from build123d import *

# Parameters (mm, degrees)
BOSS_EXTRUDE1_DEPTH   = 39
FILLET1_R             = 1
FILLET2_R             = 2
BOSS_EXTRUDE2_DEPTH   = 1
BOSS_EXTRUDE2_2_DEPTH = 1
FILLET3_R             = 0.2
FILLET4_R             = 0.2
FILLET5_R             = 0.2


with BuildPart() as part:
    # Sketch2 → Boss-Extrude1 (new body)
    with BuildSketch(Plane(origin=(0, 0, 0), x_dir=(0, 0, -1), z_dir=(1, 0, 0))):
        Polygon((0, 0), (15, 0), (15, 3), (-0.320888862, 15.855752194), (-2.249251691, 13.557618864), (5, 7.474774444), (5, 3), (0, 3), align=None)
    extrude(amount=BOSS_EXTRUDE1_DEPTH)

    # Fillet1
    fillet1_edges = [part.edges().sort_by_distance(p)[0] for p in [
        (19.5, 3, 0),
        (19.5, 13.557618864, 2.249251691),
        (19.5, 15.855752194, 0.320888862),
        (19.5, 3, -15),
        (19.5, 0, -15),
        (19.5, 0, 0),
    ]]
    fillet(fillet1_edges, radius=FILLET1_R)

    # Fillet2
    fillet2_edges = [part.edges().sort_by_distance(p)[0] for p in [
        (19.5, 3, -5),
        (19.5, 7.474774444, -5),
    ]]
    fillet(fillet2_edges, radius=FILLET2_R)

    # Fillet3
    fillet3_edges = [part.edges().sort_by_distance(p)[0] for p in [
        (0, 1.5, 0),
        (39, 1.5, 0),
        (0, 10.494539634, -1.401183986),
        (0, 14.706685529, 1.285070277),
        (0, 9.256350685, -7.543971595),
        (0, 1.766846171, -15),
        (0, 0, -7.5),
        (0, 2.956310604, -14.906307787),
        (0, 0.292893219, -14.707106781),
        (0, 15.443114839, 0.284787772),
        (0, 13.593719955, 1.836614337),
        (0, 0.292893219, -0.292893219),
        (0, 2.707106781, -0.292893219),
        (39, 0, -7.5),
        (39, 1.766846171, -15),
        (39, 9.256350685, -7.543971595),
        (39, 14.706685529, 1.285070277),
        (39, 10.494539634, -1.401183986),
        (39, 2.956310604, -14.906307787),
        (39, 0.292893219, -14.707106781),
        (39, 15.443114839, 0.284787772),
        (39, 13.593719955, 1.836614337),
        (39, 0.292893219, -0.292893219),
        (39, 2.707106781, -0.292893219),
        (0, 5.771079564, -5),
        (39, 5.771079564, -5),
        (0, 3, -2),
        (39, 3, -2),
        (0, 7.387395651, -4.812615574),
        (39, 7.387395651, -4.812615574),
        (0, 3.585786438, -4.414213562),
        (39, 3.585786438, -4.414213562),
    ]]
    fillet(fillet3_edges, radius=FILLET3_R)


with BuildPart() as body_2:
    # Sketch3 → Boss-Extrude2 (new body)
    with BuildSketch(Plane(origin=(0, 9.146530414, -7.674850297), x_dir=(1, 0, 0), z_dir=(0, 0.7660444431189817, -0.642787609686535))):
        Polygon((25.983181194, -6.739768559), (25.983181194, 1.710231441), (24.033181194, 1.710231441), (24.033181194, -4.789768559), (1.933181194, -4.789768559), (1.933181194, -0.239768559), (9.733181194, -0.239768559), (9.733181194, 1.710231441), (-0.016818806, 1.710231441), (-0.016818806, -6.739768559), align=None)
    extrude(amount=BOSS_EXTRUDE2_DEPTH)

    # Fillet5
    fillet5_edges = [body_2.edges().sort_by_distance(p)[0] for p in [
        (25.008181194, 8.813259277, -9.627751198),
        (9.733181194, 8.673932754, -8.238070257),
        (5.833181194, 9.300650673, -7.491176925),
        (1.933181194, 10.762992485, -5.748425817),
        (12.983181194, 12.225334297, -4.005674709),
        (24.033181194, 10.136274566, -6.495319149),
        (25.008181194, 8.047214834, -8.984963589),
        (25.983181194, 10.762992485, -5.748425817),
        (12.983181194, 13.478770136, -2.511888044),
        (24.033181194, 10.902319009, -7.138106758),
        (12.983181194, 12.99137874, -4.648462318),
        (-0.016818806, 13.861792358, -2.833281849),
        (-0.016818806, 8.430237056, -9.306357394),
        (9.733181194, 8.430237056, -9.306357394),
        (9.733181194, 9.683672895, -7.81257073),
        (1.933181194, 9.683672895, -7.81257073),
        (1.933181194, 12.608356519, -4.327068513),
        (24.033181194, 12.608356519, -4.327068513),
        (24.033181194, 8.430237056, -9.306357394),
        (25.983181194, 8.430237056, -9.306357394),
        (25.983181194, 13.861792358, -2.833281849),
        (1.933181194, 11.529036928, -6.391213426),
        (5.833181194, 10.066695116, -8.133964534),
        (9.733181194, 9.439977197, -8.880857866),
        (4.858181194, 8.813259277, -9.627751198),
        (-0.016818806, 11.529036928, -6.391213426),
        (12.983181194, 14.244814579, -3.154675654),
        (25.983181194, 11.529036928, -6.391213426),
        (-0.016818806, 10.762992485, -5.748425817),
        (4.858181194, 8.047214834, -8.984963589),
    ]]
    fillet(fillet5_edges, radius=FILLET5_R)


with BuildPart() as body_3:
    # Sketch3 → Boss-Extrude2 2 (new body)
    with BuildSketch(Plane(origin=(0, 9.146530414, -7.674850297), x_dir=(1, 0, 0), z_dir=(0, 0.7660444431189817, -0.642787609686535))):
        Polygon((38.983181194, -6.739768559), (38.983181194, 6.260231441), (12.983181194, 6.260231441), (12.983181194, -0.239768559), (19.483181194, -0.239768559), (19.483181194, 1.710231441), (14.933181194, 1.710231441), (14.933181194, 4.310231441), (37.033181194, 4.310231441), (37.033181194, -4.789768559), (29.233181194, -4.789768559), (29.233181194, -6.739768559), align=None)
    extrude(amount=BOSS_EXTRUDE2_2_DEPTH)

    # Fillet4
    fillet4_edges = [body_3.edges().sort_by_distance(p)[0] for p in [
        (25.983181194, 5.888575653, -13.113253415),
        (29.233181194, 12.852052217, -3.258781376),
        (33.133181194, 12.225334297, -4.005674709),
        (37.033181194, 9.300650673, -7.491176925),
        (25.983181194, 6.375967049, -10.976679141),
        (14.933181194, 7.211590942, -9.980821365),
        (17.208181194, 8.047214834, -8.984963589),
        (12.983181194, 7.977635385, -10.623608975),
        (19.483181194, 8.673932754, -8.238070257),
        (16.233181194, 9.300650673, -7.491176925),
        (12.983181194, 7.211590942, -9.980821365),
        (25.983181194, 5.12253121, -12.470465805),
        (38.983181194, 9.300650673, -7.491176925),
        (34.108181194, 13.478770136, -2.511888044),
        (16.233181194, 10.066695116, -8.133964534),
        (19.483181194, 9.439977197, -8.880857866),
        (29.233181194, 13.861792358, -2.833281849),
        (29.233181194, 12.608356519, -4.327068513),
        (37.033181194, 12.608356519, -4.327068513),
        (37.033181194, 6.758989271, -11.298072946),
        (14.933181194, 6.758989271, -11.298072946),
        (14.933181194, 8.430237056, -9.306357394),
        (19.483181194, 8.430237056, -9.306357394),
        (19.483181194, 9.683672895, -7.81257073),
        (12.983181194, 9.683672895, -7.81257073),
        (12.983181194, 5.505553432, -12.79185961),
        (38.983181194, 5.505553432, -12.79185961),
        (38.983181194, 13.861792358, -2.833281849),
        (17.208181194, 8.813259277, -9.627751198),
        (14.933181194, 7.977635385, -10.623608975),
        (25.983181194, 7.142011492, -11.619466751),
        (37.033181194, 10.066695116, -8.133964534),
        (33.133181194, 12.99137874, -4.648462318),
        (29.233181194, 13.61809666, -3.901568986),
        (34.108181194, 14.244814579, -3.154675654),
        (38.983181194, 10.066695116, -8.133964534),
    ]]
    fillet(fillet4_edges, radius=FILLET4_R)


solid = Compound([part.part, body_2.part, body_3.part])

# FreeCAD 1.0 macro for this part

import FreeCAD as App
import Part
import Sketcher
from FreeCAD import Vector
Q = App.Units.Quantity


def edges_at(feature, points):
    """Names of the edges that pass closest to the given points."""
    edges = feature.Shape.Edges
    near = lambda p: min(range(len(edges)), key=lambda i: edges[i].distToShape(Part.Vertex(*p))[0])
    return sorted({f"Edge{near(p) + 1}" for p in points})


def add_polygon(sketch, points):
    """Adds a closed chain of lines whose ends are joined by coincident constraints."""
    first, n = sketch.GeometryCount, len(points)
    for a, b in zip(points, points[1:] + points[:1]):
        sketch.addGeometry(Part.LineSegment(App.Vector(*a, 0), App.Vector(*b, 0)), False)
    for i in range(n):
        sketch.addConstraint(Sketcher.Constraint("Coincident", first + i, 2, first + (i + 1) % n, 1))

doc = App.newDocument("Part")
params = doc.addObject("Spreadsheet::Sheet", "Params")
for row, (alias, value) in enumerate([
    ("sketch1_width", "3 mm"),
    ("sketch1_height", "15 mm"),
    ("sketch1_height2", "5 mm"),
    ("sketch1_length", "20 mm"),
    ("sketch1_length2", "3 mm"),
    ("pad1_length", "39 mm"),
    ("fillet_radius", "1 mm"),
    ("fillet2_radius", "2 mm"),
    ("fillet3_radius", "0.2 mm"),
    ("sketch2_width", "26 mm"),
    ("sketch2_width2", "22.1 mm"),
    ("sketch2_width3", "7.8 mm"),
    ("sketch2_height", "6.5 mm"),
    ("sketch2_width4", "1.95 mm"),
    ("pad2_length", "1 mm"),
    ("fillet4_radius", "0.2 mm"),
    ("sketch3_width", "26 mm"),
    ("sketch3_height", "13 mm"),
    ("sketch3_width2", "6.5 mm"),
    ("sketch3_width3", "22.1 mm"),
    ("sketch3_width4", "7.8 mm"),
    ("pad3_length", "1 mm"),
    ("fillet5_radius", "0.2 mm"),
], start=1):
    params.set(f"A{row}", alias)
    params.set(f"B{row}", "=" + value)
    params.setAlias(f"B{row}", alias)

body = doc.addObject("PartDesign::Body", "Body")

# Sketch on YZ plane
sketch1 = doc.addObject("Sketcher::SketchObject", "Sketch")
body.addObject(sketch1)
sketch1.AttachmentSupport = (doc.YZ_Plane, [""])
sketch1.MapMode = "FlatFace"
add_polygon(sketch1, [(0, 0), (0, -15), (3, -15), (15.9, 0.3), (13.6, 2.2), (7.5, -5), (3, -5), (3, 0)])  # lines 0-7
sketch1.addConstraint([
    Sketcher.Constraint("Vertical", 0),
    Sketcher.Constraint("Horizontal", 1),
    Sketcher.Constraint("Horizontal", 5),
    Sketcher.Constraint("Vertical", 6),
    Sketcher.Constraint("Horizontal", 7),
    Sketcher.Constraint("Coincident", 7, 2, -1, 1),
    Sketcher.Constraint("Perpendicular", 2, 3),
    Sketcher.Constraint("Perpendicular", 3, 4),
    Sketcher.Constraint("Vertical", 1, 2, 5, 2),
    Sketcher.Constraint("DistanceX", 1, 1, 1, 2, 3.0),
    Sketcher.Constraint("DistanceY", 0, 2, 0, 1, 15.0),
    Sketcher.Constraint("DistanceY", 6, 1, 6, 2, 5.0),
    Sketcher.Constraint("Angle", 2, Q("50 deg")),
    Sketcher.Constraint("Distance", 2, 20.0),
    Sketcher.Constraint("Distance", 3, 3.0),
])
sketch1.setExpression("Constraints[17]", "Params.sketch1_width")
sketch1.setExpression("Constraints[18]", "Params.sketch1_height")
sketch1.setExpression("Constraints[19]", "Params.sketch1_height2")
sketch1.setExpression("Constraints[21]", "Params.sketch1_length")
sketch1.setExpression("Constraints[22]", "Params.sketch1_length2")
pad1 = doc.addObject("PartDesign::Pad", "Pad")
body.addObject(pad1)
pad1.Profile = sketch1
pad1.setExpression("Length", "Params.pad1_length")
doc.recompute()

fillet = doc.addObject("PartDesign::Fillet", "Fillet")
body.addObject(fillet)
fillet.Base = (pad1, edges_at(pad1, [
    (19.5, 3, 0),
    (19.5, 13.558, 2.249),
    (19.5, 15.856, 0.321),
    (19.5, 3, -15),
    (19.5, 0, -15),
    (19.5, 0, 0),
]))
fillet.setExpression("Radius", "Params.fillet_radius")
doc.recompute()

fillet2 = doc.addObject("PartDesign::Fillet", "Fillet001")
body.addObject(fillet2)
fillet2.Base = (fillet, edges_at(fillet, [(19.5, 3, -5), (19.5, 7.475, -5)]))
fillet2.setExpression("Radius", "Params.fillet2_radius")
doc.recompute()

fillet3 = doc.addObject("PartDesign::Fillet", "Fillet002")
body.addObject(fillet3)
fillet3.Base = (fillet2, edges_at(fillet2, [
    (0, 1.5, 0),
    (39, 1.5, 0),
    (0, 10.495, -1.401),
    (0, 14.707, 1.285),
    (0, 9.256, -7.544),
    (0, 1.767, -15),
    (0, 0, -7.5),
    (0, 2.956, -14.906),
    (0, 0.293, -14.707),
    (0, 15.443, 0.285),
    (0, 13.594, 1.837),
    (0, 0.293, -0.293),
    (0, 2.707, -0.293),
    (39, 0, -7.5),
    (39, 1.767, -15),
    (39, 9.256, -7.544),
    (39, 14.707, 1.285),
    (39, 10.495, -1.401),
    (39, 2.956, -14.906),
    (39, 0.293, -14.707),
    (39, 15.443, 0.285),
    (39, 13.594, 1.837),
    (39, 0.293, -0.293),
    (39, 2.707, -0.293),
    (0, 5.771, -5),
    (39, 5.771, -5),
    (0, 3, -2),
    (39, 3, -2),
    (0, 7.387, -4.813),
    (39, 7.387, -4.813),
    (0, 3.586, -4.414),
    (39, 3.586, -4.414),
]))
fillet3.setExpression("Radius", "Params.fillet3_radius")
body2 = doc.addObject("PartDesign::Body", "Body001")

# Sketch on an angled plane
sketch2 = doc.addObject("Sketcher::SketchObject", "Sketch001")
body2.addObject(sketch2)
sketch2.Placement = App.Placement(Vector(0, 9.14653, -7.67485), App.Rotation(Vector(1, 0, 0), Vector(0, -0.64278761, -0.766044443), Vector(0, 0.766044443, -0.64278761), "ZXY"))
add_polygon(sketch2, [(26, -6.7), (26, 1.7), (24, 1.7), (24, -4.8), (1.9, -4.8), (1.9, -0.2), (9.7, -0.2), (9.7, 1.7), (0, 1.7), (0, -6.7)])  # lines 0-9
sketch2.addConstraint([
    Sketcher.Constraint("Vertical", 0),
    Sketcher.Constraint("Horizontal", 1),
    Sketcher.Constraint("Vertical", 2),
    Sketcher.Constraint("Horizontal", 3),
    Sketcher.Constraint("Vertical", 4),
    Sketcher.Constraint("Horizontal", 5),
    Sketcher.Constraint("Vertical", 6),
    Sketcher.Constraint("Horizontal", 7),
    Sketcher.Constraint("Vertical", 8),
    Sketcher.Constraint("Horizontal", 9),
    Sketcher.Constraint("Horizontal", 1, 2, 6, 2),
    Sketcher.Constraint("Equal", 1, 6),
    Sketcher.Constraint("DistanceX", 9, 1, 9, 2, 26.0),
    Sketcher.Constraint("DistanceX", 3, 2, 3, 1, 22.1),
    Sketcher.Constraint("DistanceX", 5, 1, 5, 2, 7.8),
    Sketcher.Constraint("DistanceY", 2, 2, 2, 1, 6.5),
    Sketcher.Constraint("DistanceX", 1, 2, 1, 1, 1.95),
    Sketcher.Constraint("DistanceY", 0, 1, 0, 2, 8.45),
    Sketcher.Constraint("DistanceX", -1, 1, 0, 2, 25.983181),
    Sketcher.Constraint("DistanceY", -1, 1, 0, 2, 1.710231),
])
sketch2.setExpression("Constraints[22]", "Params.sketch2_width")
sketch2.setExpression("Constraints[23]", "Params.sketch2_width2")
sketch2.setExpression("Constraints[24]", "Params.sketch2_width3")
sketch2.setExpression("Constraints[25]", "Params.sketch2_height")
sketch2.setExpression("Constraints[26]", "Params.sketch2_width4")
pad2 = doc.addObject("PartDesign::Pad", "Pad001")
body2.addObject(pad2)
pad2.Profile = sketch2
pad2.setExpression("Length", "Params.pad2_length")
doc.recompute()

fillet4 = doc.addObject("PartDesign::Fillet", "Fillet003")
body2.addObject(fillet4)
fillet4.Base = (pad2, ["Edge1"])
fillet4.UseAllEdges = True
fillet4.setExpression("Radius", "Params.fillet4_radius")
body3 = doc.addObject("PartDesign::Body", "Body002")

# Sketch on an angled plane
sketch3 = doc.addObject("Sketcher::SketchObject", "Sketch002")
body3.addObject(sketch3)
sketch3.Placement = App.Placement(Vector(0, 9.14653, -7.67485), App.Rotation(Vector(1, 0, 0), Vector(0, -0.64278761, -0.766044443), Vector(0, 0.766044443, -0.64278761), "ZXY"))
add_polygon(sketch3, [(39, -6.7), (39, 6.3), (13, 6.3), (13, -0.2), (19.5, -0.2), (19.5, 1.7), (14.9, 1.7), (14.9, 4.3), (37, 4.3), (37, -4.8), (29.2, -4.8), (29.2, -6.7)])  # lines 0-11
sketch3.addConstraint([
    Sketcher.Constraint("Vertical", 0),
    Sketcher.Constraint("Horizontal", 1),
    Sketcher.Constraint("Vertical", 2),
    Sketcher.Constraint("Horizontal", 3),
    Sketcher.Constraint("Vertical", 4),
    Sketcher.Constraint("Horizontal", 5),
    Sketcher.Constraint("Vertical", 6),
    Sketcher.Constraint("Horizontal", 7),
    Sketcher.Constraint("Vertical", 8),
    Sketcher.Constraint("Horizontal", 9),
    Sketcher.Constraint("Vertical", 10),
    Sketcher.Constraint("Horizontal", 11),
    Sketcher.Constraint("Equal", 3, 2),
    Sketcher.Constraint("Equal", 4, 10),
    Sketcher.Constraint("DistanceX", 1, 2, 1, 1, 26.0),
    Sketcher.Constraint("DistanceY", 0, 1, 0, 2, 13.0),
    Sketcher.Constraint("DistanceX", 3, 1, 3, 2, 6.5),
    Sketcher.Constraint("DistanceX", 7, 1, 7, 2, 22.1),
    Sketcher.Constraint("DistanceX", 9, 2, 9, 1, 7.8),
    Sketcher.Constraint("DistanceY", 6, 1, 6, 2, 2.6),
    Sketcher.Constraint("DistanceX", 5, 2, 5, 1, 4.55),
    Sketcher.Constraint("DistanceY", 4, 1, 4, 2, 1.95),
    Sketcher.Constraint("DistanceX", -1, 1, 0, 2, 38.983181),
    Sketcher.Constraint("DistanceY", -1, 1, 0, 2, 6.260231),
])
sketch3.setExpression("Constraints[26]", "Params.sketch3_width")
sketch3.setExpression("Constraints[27]", "Params.sketch3_height")
sketch3.setExpression("Constraints[28]", "Params.sketch3_width2")
sketch3.setExpression("Constraints[29]", "Params.sketch3_width3")
sketch3.setExpression("Constraints[30]", "Params.sketch3_width4")
pad3 = doc.addObject("PartDesign::Pad", "Pad002")
body3.addObject(pad3)
pad3.Profile = sketch3
pad3.setExpression("Length", "Params.pad3_length")
doc.recompute()

fillet5 = doc.addObject("PartDesign::Fillet", "Fillet004")
body3.addObject(fillet5)
fillet5.Base = (pad3, ["Edge1"])
fillet5.UseAllEdges = True
fillet5.setExpression("Radius", "Params.fillet5_radius")

doc.recompute()
